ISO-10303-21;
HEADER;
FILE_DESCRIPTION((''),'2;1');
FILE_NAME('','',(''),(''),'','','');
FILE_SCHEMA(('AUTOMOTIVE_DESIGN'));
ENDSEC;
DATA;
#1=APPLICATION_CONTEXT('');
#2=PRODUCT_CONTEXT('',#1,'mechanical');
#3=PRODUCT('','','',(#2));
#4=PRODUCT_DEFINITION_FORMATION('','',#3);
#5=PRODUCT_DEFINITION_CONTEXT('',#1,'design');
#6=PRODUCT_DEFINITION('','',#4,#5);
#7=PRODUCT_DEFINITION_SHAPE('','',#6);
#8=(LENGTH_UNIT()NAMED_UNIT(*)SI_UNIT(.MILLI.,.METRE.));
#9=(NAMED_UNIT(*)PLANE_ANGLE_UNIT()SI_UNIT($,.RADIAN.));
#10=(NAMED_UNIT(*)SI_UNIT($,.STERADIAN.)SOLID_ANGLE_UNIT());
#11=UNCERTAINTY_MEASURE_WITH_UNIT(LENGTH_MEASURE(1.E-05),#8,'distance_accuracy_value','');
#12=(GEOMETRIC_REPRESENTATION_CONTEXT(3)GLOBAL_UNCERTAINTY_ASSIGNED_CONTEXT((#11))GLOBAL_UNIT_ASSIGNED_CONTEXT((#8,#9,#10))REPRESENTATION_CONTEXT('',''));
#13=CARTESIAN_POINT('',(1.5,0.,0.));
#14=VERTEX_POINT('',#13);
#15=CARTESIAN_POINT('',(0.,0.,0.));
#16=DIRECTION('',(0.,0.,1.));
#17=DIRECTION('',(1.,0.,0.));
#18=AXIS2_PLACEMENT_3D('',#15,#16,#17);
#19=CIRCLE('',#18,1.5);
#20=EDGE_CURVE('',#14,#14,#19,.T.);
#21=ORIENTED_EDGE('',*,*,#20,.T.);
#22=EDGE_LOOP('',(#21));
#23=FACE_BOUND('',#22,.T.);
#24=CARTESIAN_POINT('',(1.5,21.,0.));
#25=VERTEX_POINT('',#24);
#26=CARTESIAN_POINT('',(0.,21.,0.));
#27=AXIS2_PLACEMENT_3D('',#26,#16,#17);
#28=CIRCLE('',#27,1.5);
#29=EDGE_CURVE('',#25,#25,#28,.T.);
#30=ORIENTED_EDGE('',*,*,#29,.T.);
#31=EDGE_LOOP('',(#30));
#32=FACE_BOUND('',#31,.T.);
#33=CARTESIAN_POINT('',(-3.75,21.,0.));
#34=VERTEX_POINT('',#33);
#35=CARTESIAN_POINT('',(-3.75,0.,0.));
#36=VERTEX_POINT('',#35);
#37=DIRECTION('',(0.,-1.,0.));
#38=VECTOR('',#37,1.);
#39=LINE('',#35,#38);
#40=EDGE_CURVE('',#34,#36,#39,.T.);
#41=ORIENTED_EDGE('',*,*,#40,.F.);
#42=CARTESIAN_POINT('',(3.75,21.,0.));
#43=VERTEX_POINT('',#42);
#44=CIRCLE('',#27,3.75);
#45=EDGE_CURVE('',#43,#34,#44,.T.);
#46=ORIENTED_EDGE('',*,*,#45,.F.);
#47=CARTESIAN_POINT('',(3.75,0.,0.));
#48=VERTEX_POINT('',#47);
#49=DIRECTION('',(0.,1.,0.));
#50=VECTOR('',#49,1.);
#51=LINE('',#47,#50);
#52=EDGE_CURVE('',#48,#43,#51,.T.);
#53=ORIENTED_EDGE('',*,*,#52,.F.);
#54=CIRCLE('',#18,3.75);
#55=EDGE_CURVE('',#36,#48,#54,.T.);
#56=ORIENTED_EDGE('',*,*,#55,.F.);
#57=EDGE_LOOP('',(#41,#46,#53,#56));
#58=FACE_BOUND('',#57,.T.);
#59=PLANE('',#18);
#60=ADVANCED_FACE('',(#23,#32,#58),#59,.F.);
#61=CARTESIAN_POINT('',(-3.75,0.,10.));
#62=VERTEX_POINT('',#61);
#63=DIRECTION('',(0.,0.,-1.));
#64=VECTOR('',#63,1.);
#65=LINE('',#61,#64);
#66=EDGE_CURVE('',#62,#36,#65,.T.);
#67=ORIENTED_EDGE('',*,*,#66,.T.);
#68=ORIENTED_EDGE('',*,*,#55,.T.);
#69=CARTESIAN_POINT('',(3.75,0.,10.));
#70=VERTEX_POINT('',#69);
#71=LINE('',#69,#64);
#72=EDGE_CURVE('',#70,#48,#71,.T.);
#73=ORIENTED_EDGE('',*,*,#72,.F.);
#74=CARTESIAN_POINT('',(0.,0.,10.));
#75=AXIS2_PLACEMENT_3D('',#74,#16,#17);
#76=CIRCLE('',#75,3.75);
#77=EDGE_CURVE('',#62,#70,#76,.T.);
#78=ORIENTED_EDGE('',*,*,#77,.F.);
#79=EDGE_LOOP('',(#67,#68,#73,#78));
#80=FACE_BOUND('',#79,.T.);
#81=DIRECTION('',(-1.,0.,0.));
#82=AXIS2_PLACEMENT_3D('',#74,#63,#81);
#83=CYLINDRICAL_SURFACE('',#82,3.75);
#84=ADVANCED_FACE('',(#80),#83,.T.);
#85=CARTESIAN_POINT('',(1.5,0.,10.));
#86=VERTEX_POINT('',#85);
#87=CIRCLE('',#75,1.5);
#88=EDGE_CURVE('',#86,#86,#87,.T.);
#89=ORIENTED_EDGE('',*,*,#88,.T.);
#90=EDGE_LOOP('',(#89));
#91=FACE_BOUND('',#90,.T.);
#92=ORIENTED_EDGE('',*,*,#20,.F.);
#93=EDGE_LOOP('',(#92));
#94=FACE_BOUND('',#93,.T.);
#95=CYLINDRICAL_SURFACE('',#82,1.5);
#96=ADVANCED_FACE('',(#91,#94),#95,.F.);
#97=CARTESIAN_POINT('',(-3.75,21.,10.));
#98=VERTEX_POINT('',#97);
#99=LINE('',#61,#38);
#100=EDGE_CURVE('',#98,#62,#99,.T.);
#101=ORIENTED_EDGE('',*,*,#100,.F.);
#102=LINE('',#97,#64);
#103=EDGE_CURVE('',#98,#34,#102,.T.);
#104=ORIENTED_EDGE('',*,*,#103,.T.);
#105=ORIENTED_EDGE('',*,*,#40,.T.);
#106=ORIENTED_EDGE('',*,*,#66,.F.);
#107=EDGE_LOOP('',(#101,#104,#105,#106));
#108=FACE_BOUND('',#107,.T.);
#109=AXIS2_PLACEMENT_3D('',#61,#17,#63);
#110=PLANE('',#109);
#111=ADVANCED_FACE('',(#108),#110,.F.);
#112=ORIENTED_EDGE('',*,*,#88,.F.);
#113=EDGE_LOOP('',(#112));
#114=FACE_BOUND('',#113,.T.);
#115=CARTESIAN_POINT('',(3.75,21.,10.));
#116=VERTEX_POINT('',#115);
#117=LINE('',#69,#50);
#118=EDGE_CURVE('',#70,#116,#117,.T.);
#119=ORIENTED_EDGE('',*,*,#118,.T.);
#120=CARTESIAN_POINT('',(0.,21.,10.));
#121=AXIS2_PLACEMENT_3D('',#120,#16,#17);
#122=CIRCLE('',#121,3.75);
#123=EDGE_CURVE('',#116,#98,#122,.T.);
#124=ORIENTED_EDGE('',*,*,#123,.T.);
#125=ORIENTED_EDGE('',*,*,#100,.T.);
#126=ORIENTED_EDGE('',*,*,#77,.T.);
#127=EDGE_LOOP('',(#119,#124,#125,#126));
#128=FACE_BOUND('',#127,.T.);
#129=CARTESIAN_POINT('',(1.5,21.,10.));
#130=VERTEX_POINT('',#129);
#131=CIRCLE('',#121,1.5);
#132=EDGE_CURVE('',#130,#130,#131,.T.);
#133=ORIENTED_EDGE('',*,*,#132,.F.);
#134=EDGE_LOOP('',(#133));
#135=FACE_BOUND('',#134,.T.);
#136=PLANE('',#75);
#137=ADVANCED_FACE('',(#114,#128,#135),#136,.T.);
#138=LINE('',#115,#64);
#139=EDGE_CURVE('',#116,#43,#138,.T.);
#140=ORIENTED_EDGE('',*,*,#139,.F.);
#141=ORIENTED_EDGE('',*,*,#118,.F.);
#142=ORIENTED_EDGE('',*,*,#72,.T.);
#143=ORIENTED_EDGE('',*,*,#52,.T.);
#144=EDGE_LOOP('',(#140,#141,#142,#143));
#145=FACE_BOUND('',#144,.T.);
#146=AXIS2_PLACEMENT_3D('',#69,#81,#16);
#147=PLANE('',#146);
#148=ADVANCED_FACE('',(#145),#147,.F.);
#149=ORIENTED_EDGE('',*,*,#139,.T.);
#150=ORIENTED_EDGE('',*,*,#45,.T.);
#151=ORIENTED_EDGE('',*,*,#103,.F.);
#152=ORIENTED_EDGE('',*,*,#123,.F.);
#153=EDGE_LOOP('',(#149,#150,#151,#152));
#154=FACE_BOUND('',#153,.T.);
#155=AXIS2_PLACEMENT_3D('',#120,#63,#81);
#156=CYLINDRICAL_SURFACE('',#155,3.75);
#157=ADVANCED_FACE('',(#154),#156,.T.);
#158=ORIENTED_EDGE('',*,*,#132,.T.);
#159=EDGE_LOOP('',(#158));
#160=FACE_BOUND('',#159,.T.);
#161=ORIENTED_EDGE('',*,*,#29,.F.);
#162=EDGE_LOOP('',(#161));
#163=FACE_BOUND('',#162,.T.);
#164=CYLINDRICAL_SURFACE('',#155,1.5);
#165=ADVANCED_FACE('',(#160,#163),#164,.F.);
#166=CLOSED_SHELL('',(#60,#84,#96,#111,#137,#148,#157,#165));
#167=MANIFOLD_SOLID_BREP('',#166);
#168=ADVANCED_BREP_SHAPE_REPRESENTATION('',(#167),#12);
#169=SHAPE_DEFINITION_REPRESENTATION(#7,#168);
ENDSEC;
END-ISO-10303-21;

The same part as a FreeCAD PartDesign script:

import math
import FreeCAD as App
import Part
import Sketcher

V = App.Vector

doc = App.newDocument("Part")
body = doc.addObject("PartDesign::Body", "Body")

# Sketch on XY plane
sketch1 = body.newObject("Sketcher::SketchObject", "Sketch")
sketch1.AttachmentSupport = (doc.getObject("XY_Plane"), [""])
sketch1.MapMode = "FlatFace"
sketch1.addGeometry([
    Part.LineSegment(V(-3.8, 21, 0), V(-3.8, 0, 0)),  # 0
    Part.ArcOfCircle(Part.Circle(V(0, 0, 0), V(0, 0, 1), 3.8), math.radians(180), math.radians(360)),  # 1
    Part.LineSegment(V(3.8, 0, 0), V(3.8, 21, 0)),  # 2
    Part.ArcOfCircle(Part.Circle(V(0, 21, 0), V(0, 0, 1), 3.8), math.radians(0), math.radians(180)),  # 3
    Part.Circle(V(0, 0, 0), V(0, 0, 1), 1.5),  # 4
    Part.Circle(V(0, 21, 0), V(0, 0, 1), 1.5),  # 5
], False)
sketch1.addConstraint([
    Sketcher.Constraint("Tangent", 0, 2, 1, 1),
    Sketcher.Constraint("Tangent", 1, 2, 2, 1),
    Sketcher.Constraint("Tangent", 2, 2, 3, 1),
    Sketcher.Constraint("Tangent", 3, 2, 0, 1),
    Sketcher.Constraint("Vertical", 0),
    Sketcher.Constraint("Vertical", 2),
    Sketcher.Constraint("Coincident", 1, 3, -1, 1),
    Sketcher.Constraint("Coincident", 4, 3, -1, 1),
    Sketcher.Constraint("Coincident", 5, 3, 3, 3),
    Sketcher.Constraint("Equal", 4, 5),
    Sketcher.Constraint("Diameter", 4, 3.0),
    Sketcher.Constraint("DistanceY", 0, 2, 0, 1, 21.0),
    Sketcher.Constraint("Radius", 1, 3.75),
])
pad1 = body.newObject("PartDesign::Pad", "Pad")
pad1.Profile = sketch1
pad1.Length = 10

doc.recompute()
